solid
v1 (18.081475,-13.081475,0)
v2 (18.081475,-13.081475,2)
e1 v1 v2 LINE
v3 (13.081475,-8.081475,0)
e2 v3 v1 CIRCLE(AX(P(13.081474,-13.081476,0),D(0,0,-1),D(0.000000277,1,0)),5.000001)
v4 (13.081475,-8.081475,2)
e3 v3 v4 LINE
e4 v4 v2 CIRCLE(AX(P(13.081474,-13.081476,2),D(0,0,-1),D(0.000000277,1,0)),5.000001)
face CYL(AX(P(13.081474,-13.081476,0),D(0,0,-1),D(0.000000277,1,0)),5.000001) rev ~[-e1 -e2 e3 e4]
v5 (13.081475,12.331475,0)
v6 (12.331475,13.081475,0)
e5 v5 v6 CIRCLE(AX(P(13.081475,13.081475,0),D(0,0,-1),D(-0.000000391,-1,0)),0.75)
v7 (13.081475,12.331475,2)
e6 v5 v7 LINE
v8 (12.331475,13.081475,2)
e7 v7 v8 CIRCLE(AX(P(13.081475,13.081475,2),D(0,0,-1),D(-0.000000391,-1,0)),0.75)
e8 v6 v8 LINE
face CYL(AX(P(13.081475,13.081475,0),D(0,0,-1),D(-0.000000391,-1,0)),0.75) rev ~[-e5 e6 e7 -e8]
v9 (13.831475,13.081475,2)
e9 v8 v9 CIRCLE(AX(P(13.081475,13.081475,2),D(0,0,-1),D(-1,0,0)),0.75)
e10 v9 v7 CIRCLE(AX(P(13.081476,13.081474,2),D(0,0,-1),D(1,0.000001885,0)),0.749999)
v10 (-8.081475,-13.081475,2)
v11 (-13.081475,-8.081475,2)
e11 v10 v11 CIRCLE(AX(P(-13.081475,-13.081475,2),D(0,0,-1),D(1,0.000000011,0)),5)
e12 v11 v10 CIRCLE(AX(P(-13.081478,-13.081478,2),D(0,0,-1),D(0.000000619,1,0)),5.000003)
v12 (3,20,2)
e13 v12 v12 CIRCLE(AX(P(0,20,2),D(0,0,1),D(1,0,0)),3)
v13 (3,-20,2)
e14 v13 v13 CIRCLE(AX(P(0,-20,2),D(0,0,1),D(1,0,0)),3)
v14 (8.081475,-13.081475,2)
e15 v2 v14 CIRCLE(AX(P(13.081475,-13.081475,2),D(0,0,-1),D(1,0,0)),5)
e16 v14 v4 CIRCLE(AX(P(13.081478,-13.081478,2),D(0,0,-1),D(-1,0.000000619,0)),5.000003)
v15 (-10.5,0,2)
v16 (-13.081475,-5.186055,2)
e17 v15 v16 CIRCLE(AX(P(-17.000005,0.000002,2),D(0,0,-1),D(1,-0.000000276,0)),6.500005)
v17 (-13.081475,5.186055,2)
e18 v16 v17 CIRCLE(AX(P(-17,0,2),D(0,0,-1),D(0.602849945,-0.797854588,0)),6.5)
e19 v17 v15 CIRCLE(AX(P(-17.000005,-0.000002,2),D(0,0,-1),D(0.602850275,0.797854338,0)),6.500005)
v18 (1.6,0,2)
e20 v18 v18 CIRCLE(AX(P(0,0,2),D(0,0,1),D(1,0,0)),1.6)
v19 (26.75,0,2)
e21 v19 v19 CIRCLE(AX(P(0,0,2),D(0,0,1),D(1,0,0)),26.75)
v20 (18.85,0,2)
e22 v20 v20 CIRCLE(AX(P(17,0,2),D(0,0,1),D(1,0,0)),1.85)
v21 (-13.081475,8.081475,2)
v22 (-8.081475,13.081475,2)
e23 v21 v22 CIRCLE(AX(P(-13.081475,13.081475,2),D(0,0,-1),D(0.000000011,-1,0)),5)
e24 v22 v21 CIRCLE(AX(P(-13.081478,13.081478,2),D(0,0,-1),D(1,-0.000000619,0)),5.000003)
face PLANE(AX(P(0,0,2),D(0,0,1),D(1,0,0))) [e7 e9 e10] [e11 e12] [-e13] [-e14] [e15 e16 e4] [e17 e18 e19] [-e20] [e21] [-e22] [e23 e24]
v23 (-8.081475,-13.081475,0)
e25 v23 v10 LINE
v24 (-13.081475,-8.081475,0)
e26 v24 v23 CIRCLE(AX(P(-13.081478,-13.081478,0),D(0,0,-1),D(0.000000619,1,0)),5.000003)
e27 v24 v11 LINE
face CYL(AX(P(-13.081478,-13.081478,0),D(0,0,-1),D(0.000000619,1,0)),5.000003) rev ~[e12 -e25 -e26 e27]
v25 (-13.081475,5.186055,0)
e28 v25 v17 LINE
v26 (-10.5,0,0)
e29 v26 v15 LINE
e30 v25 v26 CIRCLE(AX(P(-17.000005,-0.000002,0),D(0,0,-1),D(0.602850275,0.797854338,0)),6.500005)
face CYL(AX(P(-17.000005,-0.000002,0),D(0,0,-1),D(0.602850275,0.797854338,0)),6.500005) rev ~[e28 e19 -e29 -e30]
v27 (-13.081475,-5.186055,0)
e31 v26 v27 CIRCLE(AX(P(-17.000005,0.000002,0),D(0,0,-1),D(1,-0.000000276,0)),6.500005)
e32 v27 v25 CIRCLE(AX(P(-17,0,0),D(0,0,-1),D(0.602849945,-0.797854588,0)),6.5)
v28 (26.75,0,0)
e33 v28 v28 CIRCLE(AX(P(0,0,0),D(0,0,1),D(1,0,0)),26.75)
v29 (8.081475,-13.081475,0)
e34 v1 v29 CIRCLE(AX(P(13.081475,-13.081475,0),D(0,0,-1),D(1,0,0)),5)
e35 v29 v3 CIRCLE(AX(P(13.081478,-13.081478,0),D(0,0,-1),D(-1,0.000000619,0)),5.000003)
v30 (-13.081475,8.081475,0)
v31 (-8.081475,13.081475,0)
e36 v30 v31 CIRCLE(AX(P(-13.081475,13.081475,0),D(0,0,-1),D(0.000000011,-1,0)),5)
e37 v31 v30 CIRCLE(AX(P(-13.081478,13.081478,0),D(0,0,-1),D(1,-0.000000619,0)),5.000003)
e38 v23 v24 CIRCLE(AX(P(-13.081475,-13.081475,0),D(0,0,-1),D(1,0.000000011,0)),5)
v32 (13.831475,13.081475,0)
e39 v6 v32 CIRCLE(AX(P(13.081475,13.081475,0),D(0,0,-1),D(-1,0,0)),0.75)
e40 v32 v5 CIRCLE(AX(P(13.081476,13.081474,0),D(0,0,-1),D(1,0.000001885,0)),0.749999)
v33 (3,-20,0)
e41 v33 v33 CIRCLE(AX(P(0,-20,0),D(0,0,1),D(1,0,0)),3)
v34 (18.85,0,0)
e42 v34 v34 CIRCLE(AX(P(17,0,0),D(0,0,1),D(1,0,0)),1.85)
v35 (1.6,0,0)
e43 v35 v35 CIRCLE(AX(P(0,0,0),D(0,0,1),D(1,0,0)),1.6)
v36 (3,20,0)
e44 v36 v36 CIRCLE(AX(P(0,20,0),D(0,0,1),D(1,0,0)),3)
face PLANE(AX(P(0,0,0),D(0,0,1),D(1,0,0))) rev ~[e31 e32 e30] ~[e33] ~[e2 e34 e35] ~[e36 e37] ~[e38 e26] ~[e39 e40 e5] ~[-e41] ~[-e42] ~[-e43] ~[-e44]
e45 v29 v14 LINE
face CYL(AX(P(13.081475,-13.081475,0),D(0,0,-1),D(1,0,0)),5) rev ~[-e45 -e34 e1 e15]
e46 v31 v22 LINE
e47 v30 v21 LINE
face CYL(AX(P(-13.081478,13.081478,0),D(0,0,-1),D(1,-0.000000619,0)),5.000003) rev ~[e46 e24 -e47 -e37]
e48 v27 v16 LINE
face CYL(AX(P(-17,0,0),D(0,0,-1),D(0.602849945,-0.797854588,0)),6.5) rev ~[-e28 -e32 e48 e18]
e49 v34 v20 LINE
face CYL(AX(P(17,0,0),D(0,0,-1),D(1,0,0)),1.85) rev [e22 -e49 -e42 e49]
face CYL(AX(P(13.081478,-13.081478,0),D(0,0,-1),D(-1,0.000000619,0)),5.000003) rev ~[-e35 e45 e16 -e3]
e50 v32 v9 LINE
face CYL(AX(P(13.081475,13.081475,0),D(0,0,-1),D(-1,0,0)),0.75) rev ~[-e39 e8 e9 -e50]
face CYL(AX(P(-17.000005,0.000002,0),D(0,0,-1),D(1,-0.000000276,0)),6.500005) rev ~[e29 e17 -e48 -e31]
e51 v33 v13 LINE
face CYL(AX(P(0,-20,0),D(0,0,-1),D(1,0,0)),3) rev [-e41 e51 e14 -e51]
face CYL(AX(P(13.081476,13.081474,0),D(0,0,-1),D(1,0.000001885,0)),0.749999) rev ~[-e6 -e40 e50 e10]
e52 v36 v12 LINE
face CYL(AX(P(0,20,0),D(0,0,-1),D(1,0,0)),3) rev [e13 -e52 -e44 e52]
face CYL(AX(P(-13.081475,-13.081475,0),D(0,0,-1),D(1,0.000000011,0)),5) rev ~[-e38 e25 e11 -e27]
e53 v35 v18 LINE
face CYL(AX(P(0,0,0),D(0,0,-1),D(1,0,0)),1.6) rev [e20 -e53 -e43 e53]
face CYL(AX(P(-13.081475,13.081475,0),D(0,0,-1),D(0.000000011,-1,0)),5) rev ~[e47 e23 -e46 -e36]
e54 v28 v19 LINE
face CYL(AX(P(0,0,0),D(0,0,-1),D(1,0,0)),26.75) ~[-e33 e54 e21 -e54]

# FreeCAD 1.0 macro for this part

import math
import FreeCAD as App
import Part
import Sketcher
from FreeCAD import Vector

doc = App.newDocument("Part")
params = doc.addObject("Spreadsheet::Sheet", "Params")
for row, (alias, value) in enumerate([
    ("sketch1_diameter", "6 mm"),
    ("sketch1_radius", "5 mm"),
    ("sketch1_diameter2", "53.5 mm"),
    ("sketch1_diameter3", "3.2 mm"),
    ("sketch1_diameter4", "3.7 mm"),
    ("pad1_length", "2 mm"),
], start=1):
    params.set(f"A{row}", alias)
    params.set(f"B{row}", "=" + value)
    params.setAlias(f"B{row}", alias)

body = doc.addObject("PartDesign::Body", "Body")

# Sketch on XY plane
sketch1 = body.newObject("Sketcher::SketchObject", "Sketch")
sketch1.AttachmentSupport = (doc.getObject("XY_Plane"), [""])
sketch1.MapMode = "FlatFace"
sketch1.addGeometry([
    Part.Circle(Vector(0, 0, 0), Vector(0, 0, 1), 26.75),  # 0
    Part.ArcOfCircle(Part.Circle(Vector(-13.081475, -13.081475, 0), Vector(0, 0, 1), 5), math.radians(89.999999), math.radians(360.000001)),  # 1
    Part.ArcOfCircle(Part.Circle(Vector(-13.081478, -13.081478, 0), Vector(0, 0, 1), 5.000003), math.radians(0.000035), math.radians(89.999965)),  # 2
    Part.Circle(Vector(0, -20, 0), Vector(0, 0, 1), 3),  # 3
    Part.ArcOfCircle(Part.Circle(Vector(13.081475, -13.081475, 0), Vector(0, 0, 1), 5), math.radians(180), math.radians(360)),  # 4
    Part.ArcOfCircle(Part.Circle(Vector(13.081478, -13.081478, 0), Vector(0, 0, 1), 5.000003), math.radians(90.000035), math.radians(179.999965)),  # 5
    Part.ArcOfCircle(Part.Circle(Vector(13.081474, -13.081476, 0), Vector(0, 0, 1), 5.000001), math.radians(0.000016), math.radians(89.999984)),  # 6
    Part.ArcOfCircle(Part.Circle(Vector(-17, 0, 0), Vector(0, 0, 1), 6.5), math.radians(52.925716), math.radians(307.074284)),  # 7
    Part.ArcOfCircle(Part.Circle(Vector(-17.000005, -0.000002, 0), Vector(0, 0, 1), 6.500005), math.radians(0.000016), math.radians(52.925693)),  # 8
    Part.ArcOfCircle(Part.Circle(Vector(-17.000005, 0.000002, 0), Vector(0, 0, 1), 6.500005), math.radians(-52.925693), math.radians(-0.000016)),  # 9
    Part.ArcOfCircle(Part.Circle(Vector(-13.081475, 13.081475, 0), Vector(0, 0, 1), 5), math.radians(-0.000001), math.radians(270.000001)),  # 10
    Part.ArcOfCircle(Part.Circle(Vector(-13.081478, 13.081478, 0), Vector(0, 0, 1), 5.000003), math.radians(-89.999965), math.radians(-0.000035)),  # 11
    Part.Circle(Vector(0, 0, 0), Vector(0, 0, 1), 1.6),  # 12
    Part.Circle(Vector(17, 0, 0), Vector(0, 0, 1), 1.85),  # 13
    Part.Circle(Vector(0, 20, 0), Vector(0, 0, 1), 3),  # 14
    Part.ArcOfCircle(Part.Circle(Vector(13.081475, 13.081475, 0), Vector(0, 0, 1), 0.75), math.radians(0), math.radians(180)),  # 15
    Part.ArcOfCircle(Part.Circle(Vector(13.081476, 13.081474, 0), Vector(0, 0, 1), 0.749999), math.radians(-90.000108), math.radians(0.000108)),  # 16
    Part.ArcOfCircle(Part.Circle(Vector(13.081475, 13.081475, 0), Vector(0, 0, 1), 0.75), math.radians(-179.999978), math.radians(-90.000022)),  # 17
], False)
sketch1.addConstraint([
    Sketcher.Constraint("Tangent", 1, 1, 2, 2),
    Sketcher.Constraint("Coincident", 2, 1, 1, 2),
    Sketcher.Constraint("Tangent", 4, 1, 5, 2),
    Sketcher.Constraint("Tangent", 5, 1, 6, 2),
    Sketcher.Constraint("Tangent", 6, 1, 4, 2),
    Sketcher.Constraint("Tangent", 7, 1, 8, 2),
    Sketcher.Constraint("Tangent", 8, 1, 9, 2),
    Sketcher.Constraint("Tangent", 9, 1, 7, 2),
    Sketcher.Constraint("Tangent", 10, 1, 11, 2),
    Sketcher.Constraint("Coincident", 11, 1, 10, 2),
    Sketcher.Constraint("Tangent", 15, 1, 16, 2),
    Sketcher.Constraint("Tangent", 16, 1, 17, 2),
    Sketcher.Constraint("Tangent", 17, 1, 15, 2),
    Sketcher.Constraint("Coincident", 0, 3, -1, 1),
    Sketcher.Constraint("Coincident", 12, 3, -1, 1),
    Sketcher.Constraint("Equal", 1, 4),
    Sketcher.Constraint("Equal", 6, 10),
    Sketcher.Constraint("Equal", 3, 14),
    Sketcher.Constraint("Symmetric", 4, 3, 10, 3, -1, 1),
    Sketcher.Constraint("Symmetric", 7, 3, 13, 3, -1, 1),
    Sketcher.Constraint("Symmetric", 3, 3, 14, 3, -1, 1),
    Sketcher.Constraint("Symmetric", 1, 3, 15, 3, -1, 1),
    Sketcher.Constraint("Symmetric", 1, 3, 4, 3, -2),
    Sketcher.Constraint("Symmetric", 7, 1, 9, 1, -1),
    Sketcher.Constraint("PointOnObject", 3, 3, -2),
    Sketcher.Constraint("PointOnObject", 8, 1, -1),
    Sketcher.Constraint("Horizontal", 6, 3, 2, 1),
    Sketcher.Constraint("Horizontal", 2, 1, 4, 1),
    Sketcher.Constraint("Horizontal", 4, 1, 6, 1),
    Sketcher.Constraint("Horizontal", 17, 3, 10, 1),
    Sketcher.Constraint("Horizontal", 10, 1, 15, 1),
    Sketcher.Constraint("Horizontal", 15, 1, 17, 1),
    Sketcher.Constraint("Vertical", 10, 3, 1, 1),
    Sketcher.Constraint("Vertical", 17, 3, 5, 1),
    Sketcher.Constraint("Vertical", 1, 1, 7, 1),
    Sketcher.Constraint("Vertical", 9, 1, 11, 1),
    Sketcher.Constraint("Vertical", 5, 1, 16, 1),
    Sketcher.Constraint("Diameter", 3, 6.0),
    Sketcher.Constraint("Radius", 1, 5.0),
    Sketcher.Constraint("Diameter", 0, 53.5),
    Sketcher.Constraint("Diameter", 12, 3.2),
    Sketcher.Constraint("Diameter", 13, 3.7),
    Sketcher.Constraint("Radius", 7, 6.5),
    Sketcher.Constraint("Radius", 15, 0.75),
    Sketcher.Constraint("DistanceY", 3, 3, -1, 1, 20.0),
    Sketcher.Constraint("DistanceX", 7, 3, -1, 1, 17.0),
    Sketcher.Constraint("DistanceX", 2, 3, -1, 1, 13.081478),
    Sketcher.Constraint("DistanceY", 2, 3, -1, 1, 13.081478),
])
sketch1.setExpression("Constraints[37]", "Params.sketch1_diameter")
sketch1.setExpression("Constraints[38]", "Params.sketch1_radius")
sketch1.setExpression("Constraints[39]", "Params.sketch1_diameter2")
sketch1.setExpression("Constraints[40]", "Params.sketch1_diameter3")
sketch1.setExpression("Constraints[41]", "Params.sketch1_diameter4")
pad1 = body.newObject("PartDesign::Pad", "Pad")
pad1.Profile = sketch1
pad1.setExpression("Length", "Params.pad1_length")

doc.recompute()
